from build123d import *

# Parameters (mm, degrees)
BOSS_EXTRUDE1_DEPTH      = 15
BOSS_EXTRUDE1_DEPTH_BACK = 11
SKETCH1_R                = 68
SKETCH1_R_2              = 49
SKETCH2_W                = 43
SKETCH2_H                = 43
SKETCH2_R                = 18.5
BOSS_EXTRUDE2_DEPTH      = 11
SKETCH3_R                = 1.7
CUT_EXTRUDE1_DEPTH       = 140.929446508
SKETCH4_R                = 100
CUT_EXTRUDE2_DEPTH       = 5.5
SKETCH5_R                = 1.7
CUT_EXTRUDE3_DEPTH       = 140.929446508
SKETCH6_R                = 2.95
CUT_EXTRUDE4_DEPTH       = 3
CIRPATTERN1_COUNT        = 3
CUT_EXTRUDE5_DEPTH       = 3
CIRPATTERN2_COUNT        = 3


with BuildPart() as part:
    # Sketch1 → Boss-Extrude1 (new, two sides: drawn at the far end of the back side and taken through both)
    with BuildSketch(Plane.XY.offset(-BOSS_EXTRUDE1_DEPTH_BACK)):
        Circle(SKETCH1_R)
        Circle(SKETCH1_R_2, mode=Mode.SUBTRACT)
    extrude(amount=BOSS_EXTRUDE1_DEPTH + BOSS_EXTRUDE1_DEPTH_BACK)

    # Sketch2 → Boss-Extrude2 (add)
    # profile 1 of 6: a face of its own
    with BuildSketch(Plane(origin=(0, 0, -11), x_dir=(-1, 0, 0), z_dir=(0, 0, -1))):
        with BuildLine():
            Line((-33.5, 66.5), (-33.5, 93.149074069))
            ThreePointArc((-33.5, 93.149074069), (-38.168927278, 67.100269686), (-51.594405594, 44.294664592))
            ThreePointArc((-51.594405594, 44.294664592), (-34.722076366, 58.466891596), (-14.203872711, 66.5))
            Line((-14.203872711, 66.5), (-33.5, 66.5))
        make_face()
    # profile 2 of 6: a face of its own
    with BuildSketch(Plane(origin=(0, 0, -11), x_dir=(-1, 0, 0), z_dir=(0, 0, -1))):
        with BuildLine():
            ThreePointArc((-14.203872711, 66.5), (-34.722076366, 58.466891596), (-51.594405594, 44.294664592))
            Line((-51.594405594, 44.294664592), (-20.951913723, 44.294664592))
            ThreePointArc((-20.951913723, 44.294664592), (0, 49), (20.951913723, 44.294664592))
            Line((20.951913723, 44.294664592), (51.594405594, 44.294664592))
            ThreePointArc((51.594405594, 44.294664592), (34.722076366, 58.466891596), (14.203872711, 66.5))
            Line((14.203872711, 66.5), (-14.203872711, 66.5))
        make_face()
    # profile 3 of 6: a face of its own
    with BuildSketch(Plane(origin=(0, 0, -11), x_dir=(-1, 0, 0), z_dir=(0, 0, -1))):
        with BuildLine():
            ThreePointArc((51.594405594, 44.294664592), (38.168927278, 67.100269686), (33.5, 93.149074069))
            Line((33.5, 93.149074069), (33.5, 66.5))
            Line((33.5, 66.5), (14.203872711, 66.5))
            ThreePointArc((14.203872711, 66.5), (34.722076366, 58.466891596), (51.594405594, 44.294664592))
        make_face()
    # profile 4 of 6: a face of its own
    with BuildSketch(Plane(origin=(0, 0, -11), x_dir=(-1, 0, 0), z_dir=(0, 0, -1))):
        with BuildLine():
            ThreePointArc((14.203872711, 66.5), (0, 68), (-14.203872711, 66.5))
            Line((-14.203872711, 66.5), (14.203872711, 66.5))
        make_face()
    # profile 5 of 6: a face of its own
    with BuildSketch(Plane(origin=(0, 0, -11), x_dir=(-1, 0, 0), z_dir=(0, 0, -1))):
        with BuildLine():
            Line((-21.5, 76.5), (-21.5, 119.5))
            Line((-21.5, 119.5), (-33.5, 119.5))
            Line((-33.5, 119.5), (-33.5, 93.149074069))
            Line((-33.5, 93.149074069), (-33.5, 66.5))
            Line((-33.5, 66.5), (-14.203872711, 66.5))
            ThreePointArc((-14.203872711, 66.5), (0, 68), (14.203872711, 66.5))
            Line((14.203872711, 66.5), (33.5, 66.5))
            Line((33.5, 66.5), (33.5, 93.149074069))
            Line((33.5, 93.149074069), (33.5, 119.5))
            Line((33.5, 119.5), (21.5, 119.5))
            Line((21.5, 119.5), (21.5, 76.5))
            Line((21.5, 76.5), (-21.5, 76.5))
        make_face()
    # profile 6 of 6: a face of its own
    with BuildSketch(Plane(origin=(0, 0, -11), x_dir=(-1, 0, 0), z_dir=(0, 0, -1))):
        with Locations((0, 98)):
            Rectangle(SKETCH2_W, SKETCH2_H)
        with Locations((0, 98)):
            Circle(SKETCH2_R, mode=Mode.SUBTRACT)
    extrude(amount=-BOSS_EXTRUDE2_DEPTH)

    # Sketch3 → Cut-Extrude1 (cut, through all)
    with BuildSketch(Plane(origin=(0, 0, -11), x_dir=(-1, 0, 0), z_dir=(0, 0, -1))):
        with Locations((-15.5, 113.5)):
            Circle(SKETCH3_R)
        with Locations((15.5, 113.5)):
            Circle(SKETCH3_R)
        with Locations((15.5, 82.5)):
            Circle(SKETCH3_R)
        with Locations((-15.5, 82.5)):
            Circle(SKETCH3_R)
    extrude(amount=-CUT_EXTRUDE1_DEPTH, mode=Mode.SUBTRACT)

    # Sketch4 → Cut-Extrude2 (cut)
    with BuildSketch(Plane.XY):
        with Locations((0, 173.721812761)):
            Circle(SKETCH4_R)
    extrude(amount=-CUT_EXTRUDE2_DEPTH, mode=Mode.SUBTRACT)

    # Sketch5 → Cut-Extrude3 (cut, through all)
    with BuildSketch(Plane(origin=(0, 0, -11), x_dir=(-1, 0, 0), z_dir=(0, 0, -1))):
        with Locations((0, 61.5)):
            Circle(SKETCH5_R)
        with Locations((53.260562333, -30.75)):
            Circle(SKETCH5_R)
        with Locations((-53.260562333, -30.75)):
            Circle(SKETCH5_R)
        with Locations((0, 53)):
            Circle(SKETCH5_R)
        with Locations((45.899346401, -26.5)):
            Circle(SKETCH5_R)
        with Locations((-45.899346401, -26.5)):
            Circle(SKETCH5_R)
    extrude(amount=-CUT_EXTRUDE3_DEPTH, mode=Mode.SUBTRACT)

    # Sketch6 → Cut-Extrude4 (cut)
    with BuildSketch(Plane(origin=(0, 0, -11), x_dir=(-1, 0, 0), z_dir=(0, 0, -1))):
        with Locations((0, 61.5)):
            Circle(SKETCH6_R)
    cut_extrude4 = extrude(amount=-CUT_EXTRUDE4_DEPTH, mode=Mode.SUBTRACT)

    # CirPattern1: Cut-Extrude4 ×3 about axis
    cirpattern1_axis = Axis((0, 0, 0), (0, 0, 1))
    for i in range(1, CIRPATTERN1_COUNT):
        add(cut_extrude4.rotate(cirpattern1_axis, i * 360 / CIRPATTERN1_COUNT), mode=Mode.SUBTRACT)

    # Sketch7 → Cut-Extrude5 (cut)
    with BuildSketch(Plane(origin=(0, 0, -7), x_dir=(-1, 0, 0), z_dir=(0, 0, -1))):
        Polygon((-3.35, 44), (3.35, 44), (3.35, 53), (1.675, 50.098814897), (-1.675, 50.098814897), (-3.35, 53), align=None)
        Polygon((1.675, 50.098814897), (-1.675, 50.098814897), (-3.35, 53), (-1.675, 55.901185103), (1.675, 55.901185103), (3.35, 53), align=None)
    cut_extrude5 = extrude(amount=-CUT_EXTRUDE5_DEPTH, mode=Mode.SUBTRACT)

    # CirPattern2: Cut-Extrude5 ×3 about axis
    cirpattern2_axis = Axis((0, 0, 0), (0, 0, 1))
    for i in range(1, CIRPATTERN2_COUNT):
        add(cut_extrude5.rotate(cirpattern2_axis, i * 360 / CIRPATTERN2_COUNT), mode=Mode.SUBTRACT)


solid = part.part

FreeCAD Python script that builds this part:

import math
import FreeCAD as App
import Part
import Sketcher
from FreeCAD import Vector
Q = App.Units.Quantity

doc = App.newDocument("Part")
body = doc.addObject("PartDesign::Body", "Body")

# Sketch on XY plane
sketch1 = body.newObject("Sketcher::SketchObject", "Sketch")
sketch1.AttachmentSupport = (doc.getObject("XY_Plane"), [""])
sketch1.MapMode = "FlatFace"
sketch1.addGeometry([
    Part.Circle(Vector(0, 0, 0), Vector(0, 0, 1), 68),
    Part.Circle(Vector(0, 0, 0), Vector(0, 0, 1), 49),
], False)
sketch1.addConstraint([
    Sketcher.Constraint("Coincident", 0, 3, -1, 1),
    Sketcher.Constraint("Coincident", 1, 3, -1, 1),
    Sketcher.Constraint("Diameter", 0, Q("136 mm")),
    Sketcher.Constraint("Diameter", 1, Q("98 mm")),
])
pad1 = body.newObject("PartDesign::Pad", "Pad")
pad1.Profile = sketch1
pad1.Type = "TwoLengths"
pad1.Length = 15
pad1.Length2 = 11

# Sketch on XY plane
sketch2 = body.newObject("Sketcher::SketchObject", "Sketch001")
sketch2.AttachmentSupport = (doc.getObject("XY_Plane"), [""])
sketch2.MapMode = "FlatFace"
sketch2.AttachmentOffset = App.Placement(Vector(0, 0, -11), App.Rotation())
sketch2.addGeometry([
    Part.ArcOfCircle(Part.Circle(Vector(109, 93, 0), Vector(0, 0, 1), 75), math.radians(180), math.radians(221)),  # 0
    Part.LineSegment(Vector(52, 44, 0), Vector(21, 44, 0)),  # 1
    Part.ArcOfCircle(Part.Circle(Vector(0, 0, 0), Vector(0, 0, 1), 49), math.radians(65), math.radians(115)),  # 2
    Part.LineSegment(Vector(-21, 44, 0), Vector(-52, 44, 0)),  # 3
    Part.ArcOfCircle(Part.Circle(Vector(-109, 93, 0), Vector(0, 0, 1), 75), math.radians(-41), math.radians(0)),  # 4
    Part.LineSegment(Vector(-34, 93, 0), Vector(-34, 120, 0)),  # 5
    Part.LineSegment(Vector(-34, 120, 0), Vector(34, 120, 0)),  # 6
    Part.LineSegment(Vector(34, 120, 0), Vector(34, 93, 0)),  # 7
    Part.Circle(Vector(0, 98, 0), Vector(0, 0, 1), 18),  # 8
], False)
sketch2.addConstraint([
    Sketcher.Constraint("Coincident", 0, 2, 1, 1),
    Sketcher.Constraint("Coincident", 1, 2, 2, 1),
    Sketcher.Constraint("Coincident", 2, 2, 3, 1),
    Sketcher.Constraint("Coincident", 3, 2, 4, 1),
    Sketcher.Constraint("Tangent", 4, 2, 5, 1),
    Sketcher.Constraint("Coincident", 5, 2, 6, 1),
    Sketcher.Constraint("Coincident", 6, 2, 7, 1),
    Sketcher.Constraint("Tangent", 7, 2, 0, 1),
    Sketcher.Constraint("Horizontal", 1),
    Sketcher.Constraint("Horizontal", 3),
    Sketcher.Constraint("Vertical", 5),
    Sketcher.Constraint("Horizontal", 6),
    Sketcher.Constraint("Vertical", 7),
    Sketcher.Constraint("Coincident", 2, 3, -1, 1),
    Sketcher.Constraint("Equal", 0, 4),
    Sketcher.Constraint("Symmetric", 0, 3, 4, 3, -2),
    Sketcher.Constraint("PointOnObject", 8, 3, -2),
    Sketcher.Constraint("Horizontal", 1, 2, 2, 2),
    Sketcher.Constraint("Diameter", 8, Q("37 mm")),
    Sketcher.Constraint("Radius", 0, Q("75 mm")),
    Sketcher.Constraint("Radius", 2, Q("49 mm")),
    Sketcher.Constraint("DistanceX", 6, 1, 6, 2, Q("67 mm")),
    Sketcher.Constraint("DistanceY", -1, 1, 8, 3, Q("98 mm")),
    Sketcher.Constraint("DistanceY", -1, 1, 5, 2, Q("119.5 mm")),
    Sketcher.Constraint("DistanceX", 1, 2, 1, 1, Q("30.642492 mm")),
    Sketcher.Constraint("DistanceY", 5, 1, 5, 2, Q("26.350926 mm")),
])
pad2 = body.newObject("PartDesign::Pad", "Pad001")
pad2.Profile = sketch2
pad2.Length = 11

# Sketch on XY plane
sketch3 = body.newObject("Sketcher::SketchObject", "Sketch002")
sketch3.AttachmentSupport = (doc.getObject("XY_Plane"), [""])
sketch3.MapMode = "FlatFace"
sketch3.AttachmentOffset = App.Placement(Vector(0, 0, -11), App.Rotation())
sketch3.addGeometry([
    Part.Circle(Vector(15.5, 113.5, 0), Vector(0, 0, 1), 1.7),
    Part.Circle(Vector(-15.5, 113.5, 0), Vector(0, 0, 1), 1.7),
    Part.Circle(Vector(-15.5, 82.5, 0), Vector(0, 0, 1), 1.7),
    Part.Circle(Vector(15.5, 82.5, 0), Vector(0, 0, 1), 1.7),
], False)
sketch3.addConstraint([
    Sketcher.Constraint("Equal", 0, 1),
    Sketcher.Constraint("Equal", 1, 2),
    Sketcher.Constraint("Equal", 2, 3),
    Sketcher.Constraint("Symmetric", 0, 3, 1, 3, -2),
    Sketcher.Constraint("Symmetric", 2, 3, 3, 3, -2),
    Sketcher.Constraint("Vertical", 1, 3, 2, 3),
    Sketcher.Constraint("Diameter", 0, Q("3.4 mm")),
    Sketcher.Constraint("DistanceX", 1, 3, 0, 3, Q("31 mm")),
    Sketcher.Constraint("DistanceY", 2, 3, 1, 3, Q("31 mm")),
    Sketcher.Constraint("DistanceY", -1, 1, 0, 3, Q("113.5 mm")),
])
pocket1 = body.newObject("PartDesign::Pocket", "Pocket")
pocket1.Profile = sketch3
pocket1.Type = "ThroughAll"
pocket1.Reversed = True

# Sketch on XY plane
sketch4 = body.newObject("Sketcher::SketchObject", "Sketch003")
sketch4.AttachmentSupport = (doc.getObject("XY_Plane"), [""])
sketch4.MapMode = "FlatFace"
sketch4.addGeometry(Part.Circle(Vector(0, 174, 0), Vector(0, 0, 1), 100), False)
sketch4.addConstraint([
    Sketcher.Constraint("PointOnObject", 0, 3, -2),
    Sketcher.Constraint("Diameter", 0, Q("200 mm")),
    Sketcher.Constraint("DistanceY", -1, 1, 0, 3, Q("173.721813 mm")),
])
pocket2 = body.newObject("PartDesign::Pocket", "Pocket001")
pocket2.Profile = sketch4
pocket2.Length = 5.5

# Sketch on XY plane
sketch5 = body.newObject("Sketcher::SketchObject", "Sketch004")
sketch5.AttachmentSupport = (doc.getObject("XY_Plane"), [""])
sketch5.MapMode = "FlatFace"
sketch5.AttachmentOffset = App.Placement(Vector(0, 0, -11), App.Rotation())
sketch5.addGeometry([
    Part.Circle(Vector(0, 61.5, 0), Vector(0, 0, 1), 1.7),  # 0
    Part.Circle(Vector(-53.3, -30.8, 0), Vector(0, 0, 1), 1.7),  # 1
    Part.Circle(Vector(53.3, -30.8, 0), Vector(0, 0, 1), 1.7),  # 2
    Part.Circle(Vector(0, 53, 0), Vector(0, 0, 1), 1.7),  # 3
    Part.Circle(Vector(-45.9, -26.5, 0), Vector(0, 0, 1), 1.7),  # 4
    Part.Circle(Vector(45.9, -26.5, 0), Vector(0, 0, 1), 1.7),  # 5
], False)
sketch5.addConstraint([
    Sketcher.Constraint("Equal", 0, 1),
    Sketcher.Constraint("Equal", 1, 2),
    Sketcher.Constraint("Equal", 2, 3),
    Sketcher.Constraint("Equal", 3, 4),
    Sketcher.Constraint("Equal", 4, 5),
    Sketcher.Constraint("Symmetric", 1, 3, 2, 3, -2),
    Sketcher.Constraint("Symmetric", 4, 3, 5, 3, -2),
    Sketcher.Constraint("PointOnObject", 0, 3, -2),
    Sketcher.Constraint("PointOnObject", 3, 3, -2),
    Sketcher.Constraint("Diameter", 0, Q("3.4 mm")),
    Sketcher.Constraint("DistanceY", -1, 1, 3, 3, Q("53 mm")),
    Sketcher.Constraint("DistanceY", 4, 3, 0, 3, Q("88 mm")),
    Sketcher.Constraint("DistanceY", -1, 1, 0, 3, Q("61.5 mm")),
    Sketcher.Constraint("DistanceY", 1, 3, -1, 1, Q("30.75 mm")),
    Sketcher.Constraint("DistanceX", 4, 3, 2, 3, Q("99.159909 mm")),
    Sketcher.Constraint("DistanceX", 1, 3, -1, 1, Q("53.260562 mm")),
])
pocket3 = body.newObject("PartDesign::Pocket", "Pocket002")
pocket3.Profile = sketch5
pocket3.Type = "ThroughAll"
pocket3.Reversed = True

# Sketch on XY plane
sketch6 = body.newObject("Sketcher::SketchObject", "Sketch005")
sketch6.AttachmentSupport = (doc.getObject("XY_Plane"), [""])
sketch6.MapMode = "FlatFace"
sketch6.AttachmentOffset = App.Placement(Vector(0, 0, -11), App.Rotation())
sketch6.addGeometry(Part.Circle(Vector(0, 61.5, 0), Vector(0, 0, 1), 3), False)
sketch6.addConstraint([
    Sketcher.Constraint("PointOnObject", 0, 3, -2),
    Sketcher.Constraint("Diameter", 0, Q("5.9 mm")),
    Sketcher.Constraint("DistanceY", -1, 1, 0, 3, Q("61.5 mm")),
])
pocket4 = body.newObject("PartDesign::Pocket", "Pocket003")
pocket4.Profile = sketch6
pocket4.Length = 3
pocket4.Reversed = True
doc.recompute()

polarpattern = body.newObject("PartDesign::PolarPattern", "PolarPattern")
polarpattern.Originals = [pocket4]
polarpattern.Axis = (doc.getObject("Z_Axis"), [""])
polarpattern.Angle = 360
polarpattern.Occurrences = 3
body.Tip = polarpattern

# Sketch on XY plane
sketch7 = body.newObject("Sketcher::SketchObject", "Sketch006")
sketch7.AttachmentSupport = (doc.getObject("XY_Plane"), [""])
sketch7.MapMode = "FlatFace"
sketch7.AttachmentOffset = App.Placement(Vector(0, 0, -7), App.Rotation())
sketch7.addGeometry([
    Part.LineSegment(Vector(3.4, 44, 0), Vector(-3.4, 44, 0)),  # 0
    Part.LineSegment(Vector(-3.4, 44, 0), Vector(-3.4, 53, 0)),  # 1
    Part.LineSegment(Vector(-3.4, 53, 0), Vector(-1.7, 55.9, 0)),  # 2
    Part.LineSegment(Vector(-1.7, 55.9, 0), Vector(1.7, 55.9, 0)),  # 3
    Part.LineSegment(Vector(1.7, 55.9, 0), Vector(3.4, 53, 0)),  # 4
    Part.LineSegment(Vector(3.4, 53, 0), Vector(3.4, 44, 0)),  # 5
], False)
sketch7.addConstraint([
    Sketcher.Constraint("Coincident", 0, 2, 1, 1),
    Sketcher.Constraint("Coincident", 1, 2, 2, 1),
    Sketcher.Constraint("Coincident", 2, 2, 3, 1),
    Sketcher.Constraint("Coincident", 3, 2, 4, 1),
    Sketcher.Constraint("Coincident", 4, 2, 5, 1),
    Sketcher.Constraint("Coincident", 5, 2, 0, 1),
    Sketcher.Constraint("Horizontal", 0),
    Sketcher.Constraint("Vertical", 1),
    Sketcher.Constraint("Horizontal", 3),
    Sketcher.Constraint("Vertical", 5),
    Sketcher.Constraint("Symmetric", 1, 2, 4, 2, -2),
    Sketcher.Constraint("Equal", 2, 4),
    Sketcher.Constraint("DistanceY", 1, 1, 1, 2, Q("9 mm")),
    Sketcher.Constraint("Angle", 2, Q("60 deg")),
    Sketcher.Constraint("DistanceX", 0, 2, 0, 1, Q("6.7 mm")),
    Sketcher.Constraint("DistanceY", -1, 1, 0, 2, Q("44 mm")),
    Sketcher.Constraint("DistanceX", 3, 1, 3, 2, Q("3.35 mm")),
])
pocket5 = body.newObject("PartDesign::Pocket", "Pocket004")
pocket5.Profile = sketch7
pocket5.Length = 3
pocket5.Reversed = True
doc.recompute()

polarpattern2 = body.newObject("PartDesign::PolarPattern", "PolarPattern001")
polarpattern2.Originals = [pocket5]
polarpattern2.Axis = (doc.getObject("Z_Axis"), [""])
polarpattern2.Angle = 360
polarpattern2.Occurrences = 3
body.Tip = polarpattern2

doc.recompute()
